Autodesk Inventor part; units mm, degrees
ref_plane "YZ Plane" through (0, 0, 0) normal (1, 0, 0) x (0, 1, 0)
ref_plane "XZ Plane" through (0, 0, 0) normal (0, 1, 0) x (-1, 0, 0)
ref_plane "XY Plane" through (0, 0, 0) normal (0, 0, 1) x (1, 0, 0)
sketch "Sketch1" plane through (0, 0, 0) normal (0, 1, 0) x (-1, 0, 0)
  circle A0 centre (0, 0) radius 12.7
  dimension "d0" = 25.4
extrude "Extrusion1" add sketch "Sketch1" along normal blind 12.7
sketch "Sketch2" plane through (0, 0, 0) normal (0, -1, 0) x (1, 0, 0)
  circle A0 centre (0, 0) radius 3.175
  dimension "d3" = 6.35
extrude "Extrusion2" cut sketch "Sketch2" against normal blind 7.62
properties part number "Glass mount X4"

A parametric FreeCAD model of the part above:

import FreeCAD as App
import Part
import Sketcher
from FreeCAD import Vector
Q = App.Units.Quantity

doc = App.newDocument("Part")
body = doc.addObject("PartDesign::Body", "Body")

# Sketch on XZ plane
sketch1 = body.newObject("Sketcher::SketchObject", "Sketch")
sketch1.AttachmentSupport = (doc.getObject("XZ_Plane"), [""])
sketch1.MapMode = "FlatFace"
sketch1.addGeometry(Part.Circle(Vector(0, 0, 0), Vector(0, 0, 1), 13), False)
sketch1.addConstraint([
    Sketcher.Constraint("Coincident", 0, 3, -1, 1),
    Sketcher.Constraint("Diameter", 0, Q("1 in")),
])
pad1 = body.newObject("PartDesign::Pad", "Pad")
pad1.Profile = sketch1
pad1.Length = Q("0.5 in")
pad1.Reversed = True

# Sketch on XZ plane
sketch2 = body.newObject("Sketcher::SketchObject", "Sketch001")
sketch2.AttachmentSupport = (doc.getObject("XZ_Plane"), [""])
sketch2.MapMode = "FlatFace"
sketch2.addGeometry(Part.Circle(Vector(0, 0, 0), Vector(0, 0, 1), 3.2), False)
sketch2.addConstraint([
    Sketcher.Constraint("Coincident", 0, 3, -1, 1),
    Sketcher.Constraint("Diameter", 0, Q("0.25 in")),
])
pocket1 = body.newObject("PartDesign::Pocket", "Pocket")
pocket1.Profile = sketch2
pocket1.Length = Q("0.3 in")

doc.recompute()
